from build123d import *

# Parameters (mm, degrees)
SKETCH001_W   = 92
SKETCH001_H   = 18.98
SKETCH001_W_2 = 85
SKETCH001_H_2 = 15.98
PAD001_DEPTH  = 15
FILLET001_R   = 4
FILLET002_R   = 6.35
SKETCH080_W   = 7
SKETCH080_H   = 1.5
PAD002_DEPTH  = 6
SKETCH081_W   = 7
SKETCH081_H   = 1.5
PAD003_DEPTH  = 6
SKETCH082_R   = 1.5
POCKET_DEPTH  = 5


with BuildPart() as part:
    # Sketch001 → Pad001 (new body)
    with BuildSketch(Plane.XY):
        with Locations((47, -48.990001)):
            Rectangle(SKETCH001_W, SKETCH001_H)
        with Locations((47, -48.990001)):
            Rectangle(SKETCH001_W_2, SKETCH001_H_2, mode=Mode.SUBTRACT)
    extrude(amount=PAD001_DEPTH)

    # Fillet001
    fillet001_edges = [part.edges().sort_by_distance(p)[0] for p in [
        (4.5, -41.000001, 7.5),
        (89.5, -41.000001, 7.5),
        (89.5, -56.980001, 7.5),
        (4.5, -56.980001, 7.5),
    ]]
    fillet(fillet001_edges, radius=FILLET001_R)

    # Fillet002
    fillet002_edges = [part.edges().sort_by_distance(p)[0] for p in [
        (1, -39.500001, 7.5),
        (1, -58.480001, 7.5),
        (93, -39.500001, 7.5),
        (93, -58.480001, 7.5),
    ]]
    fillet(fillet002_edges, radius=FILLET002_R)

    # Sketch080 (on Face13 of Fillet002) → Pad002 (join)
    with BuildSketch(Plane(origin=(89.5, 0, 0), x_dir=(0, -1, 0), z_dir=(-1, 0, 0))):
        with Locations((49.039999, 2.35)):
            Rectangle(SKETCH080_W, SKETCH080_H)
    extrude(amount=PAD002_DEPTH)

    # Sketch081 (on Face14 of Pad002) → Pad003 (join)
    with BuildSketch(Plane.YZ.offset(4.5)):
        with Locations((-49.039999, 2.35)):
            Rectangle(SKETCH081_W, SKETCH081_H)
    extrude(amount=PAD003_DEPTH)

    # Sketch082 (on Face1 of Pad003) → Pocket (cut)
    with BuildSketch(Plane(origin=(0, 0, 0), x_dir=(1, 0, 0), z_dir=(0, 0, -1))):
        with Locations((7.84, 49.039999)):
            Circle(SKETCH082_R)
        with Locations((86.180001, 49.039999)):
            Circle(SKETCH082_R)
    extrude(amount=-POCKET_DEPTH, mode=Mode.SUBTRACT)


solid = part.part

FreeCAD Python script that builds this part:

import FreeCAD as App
import Part
import Sketcher

V = App.Vector


def edges_at(feature, points):
    """Names of the edges that pass closest to the given points."""
    edges = feature.Shape.Edges
    near = lambda p: min(range(len(edges)), key=lambda i: edges[i].distToShape(Part.Vertex(*p))[0])
    return sorted({f"Edge{near(p) + 1}" for p in points})


def add_polygon(sketch, points):
    """Adds a closed chain of lines whose ends are joined by coincident constraints."""
    first, n = sketch.GeometryCount, len(points)
    for a, b in zip(points, points[1:] + points[:1]):
        sketch.addGeometry(Part.LineSegment(App.Vector(*a, 0), App.Vector(*b, 0)), False)
    for i in range(n):
        sketch.addConstraint(Sketcher.Constraint("Coincident", first + i, 2, first + (i + 1) % n, 1))

doc = App.newDocument("Part")
params = doc.addObject("Spreadsheet::Sheet", "Params")
for row, (alias, value) in enumerate([
    ("sketch1_width", "92 mm"),
    ("sketch1_width2", "85 mm"),
    ("sketch1_height", "18.98 mm"),
    ("sketch1_height2", "15.98 mm"),
    ("pad1_length", "15 mm"),
    ("fillet_radius", "4 mm"),
    ("fillet2_radius", "6.35 mm"),
    ("sketch2_width", "7 mm"),
    ("sketch2_height", "1.5 mm"),
    ("pad2_length", "6 mm"),
    ("sketch3_width", "7 mm"),
    ("sketch3_height", "1.5 mm"),
    ("pad3_length", "6 mm"),
    ("sketch4_diameter", "3 mm"),
    ("pocket1_length", "5 mm"),
], start=1):
    params.set(f"A{row}", alias)
    params.set(f"B{row}", "=" + value)
    params.setAlias(f"B{row}", alias)

body = doc.addObject("PartDesign::Body", "Body")

sketch1 = body.newObject("Sketcher::SketchObject", "Sketch")
sketch1.AttachmentSupport = (doc.getObject("XY_Plane"), [""])
sketch1.MapMode = "FlatFace"
add_polygon(sketch1, [(1, -39.500001), (1, -58.480001), (93, -58.480001), (93, -39.500001)])
add_polygon(sketch1, [(89.5, -56.980001), (4.5, -56.980001), (4.5, -41.000001), (89.5, -41.000001)])
sketch1.addConstraint(Sketcher.Constraint("Vertical", 0))
sketch1.addConstraint(Sketcher.Constraint("Horizontal", 1))
sketch1.addConstraint(Sketcher.Constraint("Vertical", 2))
sketch1.addConstraint(Sketcher.Constraint("Horizontal", 3))
sketch1.addConstraint(Sketcher.Constraint("Horizontal", 4))
sketch1.addConstraint(Sketcher.Constraint("Vertical", 5))
sketch1.addConstraint(Sketcher.Constraint("Horizontal", 6))
sketch1.addConstraint(Sketcher.Constraint("Vertical", 7))
sketch1.addConstraint(Sketcher.Constraint("DistanceX", 1, 1, 1, 2, 92.0))
sketch1.addConstraint(Sketcher.Constraint("DistanceX", 4, 2, 4, 1, 85.0))
sketch1.addConstraint(Sketcher.Constraint("DistanceX", -1, 1, 0, 2, 1.0))
sketch1.addConstraint(Sketcher.Constraint("DistanceY", 5, 2, -1, 1, 41.000001))
sketch1.addConstraint(Sketcher.Constraint("DistanceY", 0, 2, 0, 1, 18.98))
sketch1.addConstraint(Sketcher.Constraint("DistanceY", 5, 1, 5, 2, 15.98))
sketch1.addConstraint(Sketcher.Constraint("DistanceY", 2, 2, -1, 1, 39.500001))
sketch1.addConstraint(Sketcher.Constraint("DistanceX", -1, 1, 4, 2, 4.5))
sketch1.setExpression("Constraints[16]", "Params.sketch1_width")
sketch1.setExpression("Constraints[17]", "Params.sketch1_width2")
sketch1.setExpression("Constraints[20]", "Params.sketch1_height")
sketch1.setExpression("Constraints[21]", "Params.sketch1_height2")
pad1 = body.newObject("PartDesign::Pad", "Pad")
pad1.Profile = sketch1
pad1.setExpression("Length", "Params.pad1_length")
doc.recompute()

fillet = body.newObject("PartDesign::Fillet", "Fillet")
fillet.Base = (pad1, edges_at(pad1, [
    (4.5, -41, 7.5),
    (89.5, -41, 7.5),
    (89.5, -56.98, 7.5),
    (4.5, -56.98, 7.5),
]))
fillet.setExpression("Radius", "Params.fillet_radius")
doc.recompute()

fillet2 = body.newObject("PartDesign::Fillet", "Fillet001")
fillet2.Base = (fillet, edges_at(fillet, [
    (1, -39.5, 7.5),
    (1, -58.48, 7.5),
    (93, -39.5, 7.5),
    (93, -58.48, 7.5),
]))
fillet2.setExpression("Radius", "Params.fillet2_radius")

sketch2 = body.newObject("Sketcher::SketchObject", "Sketch001")
sketch2.AttachmentSupport = (doc.getObject("YZ_Plane"), [""])
sketch2.MapMode = "FlatFace"
sketch2.AttachmentOffset = App.Placement(V(0, 0, 89.5), App.Rotation())
add_polygon(sketch2, [(-45.539999, 3.1), (-45.539999, 1.6), (-52.539999, 1.6), (-52.539999, 3.1)])
sketch2.addConstraint(Sketcher.Constraint("Vertical", 0))
sketch2.addConstraint(Sketcher.Constraint("Horizontal", 1))
sketch2.addConstraint(Sketcher.Constraint("Vertical", 2))
sketch2.addConstraint(Sketcher.Constraint("Horizontal", 3))
sketch2.addConstraint(Sketcher.Constraint("DistanceX", 1, 2, 1, 1, 7.0))
sketch2.addConstraint(Sketcher.Constraint("DistanceY", 0, 2, 0, 1, 1.5))
sketch2.addConstraint(Sketcher.Constraint("DistanceY", -1, 1, 0, 2, 1.6))
sketch2.addConstraint(Sketcher.Constraint("DistanceX", 0, 2, -1, 1, 45.539999))
sketch2.setExpression("Constraints[8]", "Params.sketch2_width")
sketch2.setExpression("Constraints[9]", "Params.sketch2_height")
pad2 = body.newObject("PartDesign::Pad", "Pad001")
pad2.Profile = sketch2
pad2.setExpression("Length", "Params.pad2_length")
pad2.Reversed = True

sketch3 = body.newObject("Sketcher::SketchObject", "Sketch002")
sketch3.AttachmentSupport = (doc.getObject("YZ_Plane"), [""])
sketch3.MapMode = "FlatFace"
sketch3.AttachmentOffset = App.Placement(V(0, 0, 4.5), App.Rotation())
add_polygon(sketch3, [(-52.539999, 3.1), (-52.539999, 1.6), (-45.539999, 1.6), (-45.539999, 3.1)])
sketch3.addConstraint(Sketcher.Constraint("Vertical", 0))
sketch3.addConstraint(Sketcher.Constraint("Horizontal", 1))
sketch3.addConstraint(Sketcher.Constraint("Vertical", 2))
sketch3.addConstraint(Sketcher.Constraint("Horizontal", 3))
sketch3.addConstraint(Sketcher.Constraint("DistanceX", 1, 1, 1, 2, 7.0))
sketch3.addConstraint(Sketcher.Constraint("DistanceY", 0, 2, 0, 1, 1.5))
sketch3.addConstraint(Sketcher.Constraint("DistanceY", -1, 1, 0, 2, 1.6))
sketch3.addConstraint(Sketcher.Constraint("DistanceX", 0, 2, -1, 1, 52.539999))
sketch3.setExpression("Constraints[8]", "Params.sketch3_width")
sketch3.setExpression("Constraints[9]", "Params.sketch3_height")
pad3 = body.newObject("PartDesign::Pad", "Pad002")
pad3.Profile = sketch3
pad3.setExpression("Length", "Params.pad3_length")

sketch4 = body.newObject("Sketcher::SketchObject", "Sketch003")
sketch4.AttachmentSupport = (doc.getObject("XY_Plane"), [""])
sketch4.MapMode = "FlatFace"
sketch4.addGeometry(Part.Circle(V(7.84, -49.039999, 0), V(0, 0, 1), 1.5), False)
sketch4.addGeometry(Part.Circle(V(86.180001, -49.039999, 0), V(0, 0, 1), 1.5), False)
sketch4.addConstraint(Sketcher.Constraint("Equal", 0, 1))
sketch4.addConstraint(Sketcher.Constraint("Horizontal", 0, 3, 1, 3))
sketch4.addConstraint(Sketcher.Constraint("Diameter", 0, 3.0))
sketch4.addConstraint(Sketcher.Constraint("DistanceX", -1, 1, 0, 3, 7.84))
sketch4.addConstraint(Sketcher.Constraint("DistanceY", 0, 3, -1, 1, 49.039999))
sketch4.addConstraint(Sketcher.Constraint("DistanceX", -1, 1, 1, 3, 86.180001))
sketch4.setExpression("Constraints[2]", "Params.sketch4_diameter")
pocket1 = body.newObject("PartDesign::Pocket", "Pocket")
pocket1.Profile = sketch4
pocket1.setExpression("Length", "Params.pocket1_length")
pocket1.Reversed = True

doc.recompute()
